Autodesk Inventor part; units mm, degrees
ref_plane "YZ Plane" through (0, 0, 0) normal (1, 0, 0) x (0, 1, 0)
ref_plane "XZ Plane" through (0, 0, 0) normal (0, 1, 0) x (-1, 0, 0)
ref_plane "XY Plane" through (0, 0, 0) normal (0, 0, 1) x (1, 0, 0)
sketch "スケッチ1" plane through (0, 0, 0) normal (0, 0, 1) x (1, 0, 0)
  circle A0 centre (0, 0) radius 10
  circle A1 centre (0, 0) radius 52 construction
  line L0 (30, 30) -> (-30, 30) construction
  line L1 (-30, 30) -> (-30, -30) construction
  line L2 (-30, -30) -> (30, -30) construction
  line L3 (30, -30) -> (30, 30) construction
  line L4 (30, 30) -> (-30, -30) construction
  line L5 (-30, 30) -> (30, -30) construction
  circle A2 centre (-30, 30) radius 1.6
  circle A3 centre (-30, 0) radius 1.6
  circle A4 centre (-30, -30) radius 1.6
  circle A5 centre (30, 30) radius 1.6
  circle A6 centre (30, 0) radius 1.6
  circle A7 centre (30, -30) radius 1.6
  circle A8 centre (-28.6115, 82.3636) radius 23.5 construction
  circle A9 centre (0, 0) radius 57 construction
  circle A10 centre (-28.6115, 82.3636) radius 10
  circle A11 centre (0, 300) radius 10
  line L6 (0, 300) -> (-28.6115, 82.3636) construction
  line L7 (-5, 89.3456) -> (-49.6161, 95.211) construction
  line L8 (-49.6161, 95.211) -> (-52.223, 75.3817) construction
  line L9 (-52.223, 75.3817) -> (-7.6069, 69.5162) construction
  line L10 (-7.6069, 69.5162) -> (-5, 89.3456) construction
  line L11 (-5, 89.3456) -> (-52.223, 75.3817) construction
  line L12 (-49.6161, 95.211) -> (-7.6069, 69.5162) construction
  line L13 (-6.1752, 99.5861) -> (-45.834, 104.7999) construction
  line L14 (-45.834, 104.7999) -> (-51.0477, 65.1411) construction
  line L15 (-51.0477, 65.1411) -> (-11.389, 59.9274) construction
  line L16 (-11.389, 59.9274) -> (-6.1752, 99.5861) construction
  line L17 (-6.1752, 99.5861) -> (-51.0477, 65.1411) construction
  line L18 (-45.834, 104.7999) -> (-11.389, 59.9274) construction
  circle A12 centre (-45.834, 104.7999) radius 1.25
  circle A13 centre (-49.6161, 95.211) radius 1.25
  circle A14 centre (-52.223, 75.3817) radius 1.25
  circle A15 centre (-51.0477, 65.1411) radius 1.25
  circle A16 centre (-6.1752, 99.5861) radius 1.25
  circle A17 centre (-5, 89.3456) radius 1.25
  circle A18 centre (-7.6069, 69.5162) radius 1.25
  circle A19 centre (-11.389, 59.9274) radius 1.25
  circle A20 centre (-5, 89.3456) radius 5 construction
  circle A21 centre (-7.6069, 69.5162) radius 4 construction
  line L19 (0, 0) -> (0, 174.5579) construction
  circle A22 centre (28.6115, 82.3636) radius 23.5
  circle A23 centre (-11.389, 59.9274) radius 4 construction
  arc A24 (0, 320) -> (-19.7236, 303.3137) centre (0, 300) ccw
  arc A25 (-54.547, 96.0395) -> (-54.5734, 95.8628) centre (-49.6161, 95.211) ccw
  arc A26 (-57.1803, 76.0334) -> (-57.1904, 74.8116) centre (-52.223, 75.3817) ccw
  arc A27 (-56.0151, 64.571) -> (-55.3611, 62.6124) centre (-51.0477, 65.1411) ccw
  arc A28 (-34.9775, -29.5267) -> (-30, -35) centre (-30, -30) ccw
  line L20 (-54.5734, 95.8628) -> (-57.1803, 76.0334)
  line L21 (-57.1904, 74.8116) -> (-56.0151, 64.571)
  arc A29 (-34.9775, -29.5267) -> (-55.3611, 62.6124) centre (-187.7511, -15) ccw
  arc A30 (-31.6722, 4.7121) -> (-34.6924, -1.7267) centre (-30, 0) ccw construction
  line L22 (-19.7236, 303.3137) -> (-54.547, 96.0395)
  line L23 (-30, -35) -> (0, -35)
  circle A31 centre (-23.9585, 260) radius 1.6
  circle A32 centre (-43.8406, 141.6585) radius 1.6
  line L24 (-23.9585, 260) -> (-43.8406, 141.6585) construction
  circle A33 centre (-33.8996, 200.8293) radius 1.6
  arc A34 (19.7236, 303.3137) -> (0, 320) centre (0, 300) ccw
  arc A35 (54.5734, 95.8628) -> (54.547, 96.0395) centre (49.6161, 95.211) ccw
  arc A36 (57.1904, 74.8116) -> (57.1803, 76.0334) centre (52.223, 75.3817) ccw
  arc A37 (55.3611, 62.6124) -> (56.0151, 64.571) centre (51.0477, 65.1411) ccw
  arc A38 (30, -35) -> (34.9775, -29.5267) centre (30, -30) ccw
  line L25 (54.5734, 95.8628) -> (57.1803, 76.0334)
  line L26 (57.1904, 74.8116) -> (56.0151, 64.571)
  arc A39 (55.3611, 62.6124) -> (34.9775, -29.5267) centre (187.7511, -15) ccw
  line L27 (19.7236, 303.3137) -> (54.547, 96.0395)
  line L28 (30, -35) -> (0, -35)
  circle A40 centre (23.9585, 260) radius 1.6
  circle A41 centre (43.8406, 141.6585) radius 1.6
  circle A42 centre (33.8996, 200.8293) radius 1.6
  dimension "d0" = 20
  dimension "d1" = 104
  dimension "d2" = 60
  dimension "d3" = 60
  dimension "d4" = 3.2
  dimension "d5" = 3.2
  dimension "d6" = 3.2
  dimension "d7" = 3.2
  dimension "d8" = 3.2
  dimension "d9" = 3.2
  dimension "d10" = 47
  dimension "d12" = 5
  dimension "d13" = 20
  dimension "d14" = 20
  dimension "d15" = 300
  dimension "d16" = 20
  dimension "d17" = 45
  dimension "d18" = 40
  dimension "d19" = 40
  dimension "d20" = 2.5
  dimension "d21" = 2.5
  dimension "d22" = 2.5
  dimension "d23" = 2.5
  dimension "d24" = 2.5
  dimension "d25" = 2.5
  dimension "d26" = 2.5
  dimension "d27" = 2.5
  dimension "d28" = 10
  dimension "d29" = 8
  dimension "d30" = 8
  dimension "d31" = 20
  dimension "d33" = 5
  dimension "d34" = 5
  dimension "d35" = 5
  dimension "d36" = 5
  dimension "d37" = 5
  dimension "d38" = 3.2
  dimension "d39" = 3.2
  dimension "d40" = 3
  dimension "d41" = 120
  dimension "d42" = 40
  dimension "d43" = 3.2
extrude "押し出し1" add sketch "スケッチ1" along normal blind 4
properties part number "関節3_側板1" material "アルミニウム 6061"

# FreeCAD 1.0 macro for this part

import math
import FreeCAD as App
import Part
import Sketcher

V = App.Vector
Q = App.Units.Quantity

doc = App.newDocument("Part")
body = doc.addObject("PartDesign::Body", "Body")

# Sketch on XY plane
sketch1 = body.newObject("Sketcher::SketchObject", "Sketch")
sketch1.AttachmentSupport = (doc.getObject("XY_Plane"), [""])
sketch1.MapMode = "FlatFace"
sketch1.addGeometry(Part.ArcOfCircle(Part.Circle(V(0, 300, 0), V(0, 0, 1), 20), math.radians(9.537018), math.radians(90)), False)
sketch1.addGeometry(Part.ArcOfCircle(Part.Circle(V(0, 300, 0), V(0, 0, 1), 20.000025), math.radians(90), math.radians(170.462982)), False)
sketch1.addGeometry(Part.LineSegment(V(-19.7236, 303.3137, 0), V(-54.547, 96.0395, 0)), False)
sketch1.addGeometry(Part.ArcOfCircle(Part.Circle(V(-49.772063, 95.235775, 0), V(0, 0, 1), 4.842107), math.radians(170.445442), math.radians(172.559628)), False)
sketch1.addGeometry(Part.LineSegment(V(-54.5734, 95.8628, 0), V(-57.1803, 76.0334, 0)), False)
sketch1.addGeometry(Part.ArcOfCircle(Part.Circle(V(-52.219392, 75.381449, 0), V(0, 0, 1), 5.003564), math.radians(172.513225), math.radians(186.539526)), False)
sketch1.addGeometry(Part.LineSegment(V(-57.1904, 74.8116, 0), V(-56.0151, 64.571, 0)), False)
sketch1.addGeometry(Part.ArcOfCircle(Part.Circle(V(-51.0477, 65.1411, 0), V(0, 0, 1), 5.000008), math.radians(-173.452907), math.radians(-149.61934)), False)
sketch1.addGeometry(Part.ArcOfCircle(Part.Circle(V(-187.7511, -15, 0), V(0, 0, 1), 153.462692), math.radians(-5.431722), math.radians(30.380565)), False)
sketch1.addGeometry(Part.ArcOfCircle(Part.Circle(V(-30, -30, 0), V(0, 0, 1), 4.999952), math.radians(174.568197), math.radians(270)), False)
sketch1.addGeometry(Part.LineSegment(V(-30, -35, 0), V(30, -35, 0)), False)
sketch1.addGeometry(Part.ArcOfCircle(Part.Circle(V(30, -30, 0), V(0, 0, 1), 5), math.radians(-90), math.radians(5.431803)), False)
sketch1.addGeometry(Part.ArcOfCircle(Part.Circle(V(187.7511, -15, 0), V(0, 0, 1), 153.462688), math.radians(149.619435), math.radians(185.431722)), False)
sketch1.addGeometry(Part.ArcOfCircle(Part.Circle(V(51.0477, 65.1411, 0), V(0, 0, 1), 4.999974), math.radians(-30.38066), math.radians(-6.547093)), False)
sketch1.addGeometry(Part.LineSegment(V(56.0151, 64.571, 0), V(57.1904, 74.8116, 0)), False)
sketch1.addGeometry(Part.ArcOfCircle(Part.Circle(V(52.226607, 75.381509, 0), V(0, 0, 1), 4.996403), math.radians(-6.549628), math.radians(7.496877)), False)
sketch1.addGeometry(Part.LineSegment(V(57.1803, 76.0334, 0), V(54.5734, 95.8628, 0)), False)
sketch1.addGeometry(Part.ArcOfCircle(Part.Circle(V(49.449178, 95.187534, 0), V(0, 0, 1), 5.168524), math.radians(7.507139), math.radians(9.487791)), False)
sketch1.addGeometry(Part.LineSegment(V(54.547, 96.0395, 0), V(19.7236, 303.3137, 0)), False)
sketch1.addGeometry(Part.Circle(V(-30, -30, 0), V(0, 0, 1), 1.6), False)
sketch1.addGeometry(Part.Circle(V(-30, 0, 0), V(0, 0, 1), 1.6), False)
sketch1.addGeometry(Part.Circle(V(-30, 30, 0), V(0, 0, 1), 1.6), False)
sketch1.addGeometry(Part.Circle(V(0, 0, 0), V(0, 0, 1), 10), False)
sketch1.addGeometry(Part.Circle(V(-51.0477, 65.1411, 0), V(0, 0, 1), 1.25), False)
sketch1.addGeometry(Part.Circle(V(-52.223, 75.3817, 0), V(0, 0, 1), 1.25), False)
sketch1.addGeometry(Part.Circle(V(-49.6161, 95.211, 0), V(0, 0, 1), 1.25), False)
sketch1.addGeometry(Part.Circle(V(-28.6115, 82.3636, 0), V(0, 0, 1), 10), False)
sketch1.addGeometry(Part.Circle(V(-45.834, 104.7999, 0), V(0, 0, 1), 1.25), False)
sketch1.addGeometry(Part.Circle(V(-43.8406, 141.6585, 0), V(0, 0, 1), 1.6), False)
sketch1.addGeometry(Part.Circle(V(-11.389, 59.9274, 0), V(0, 0, 1), 1.25), False)
sketch1.addGeometry(Part.Circle(V(-7.6069, 69.5162, 0), V(0, 0, 1), 1.25), False)
sketch1.addGeometry(Part.Circle(V(-5, 89.3456, 0), V(0, 0, 1), 1.25), False)
sketch1.addGeometry(Part.Circle(V(-6.1752, 99.5861, 0), V(0, 0, 1), 1.25), False)
sketch1.addGeometry(Part.Circle(V(30, -30, 0), V(0, 0, 1), 1.6), False)
sketch1.addGeometry(Part.Circle(V(30, 0, 0), V(0, 0, 1), 1.6), False)
sketch1.addGeometry(Part.Circle(V(30, 30, 0), V(0, 0, 1), 1.6), False)
sketch1.addGeometry(Part.Circle(V(28.6115, 82.3636, 0), V(0, 0, 1), 23.5), False)
sketch1.addGeometry(Part.Circle(V(43.8406, 141.6585, 0), V(0, 0, 1), 1.6), False)
sketch1.addGeometry(Part.Circle(V(-33.8996, 200.8293, 0), V(0, 0, 1), 1.6), False)
sketch1.addGeometry(Part.Circle(V(-23.9585, 260, 0), V(0, 0, 1), 1.6), False)
sketch1.addGeometry(Part.Circle(V(0, 300, 0), V(0, 0, 1), 10), False)
sketch1.addGeometry(Part.Circle(V(33.8996, 200.8293, 0), V(0, 0, 1), 1.6), False)
sketch1.addGeometry(Part.Circle(V(23.9585, 260, 0), V(0, 0, 1), 1.6), False)
sketch1.addConstraint(Sketcher.Constraint("Coincident", 0, 2, 1, 1))
sketch1.addConstraint(Sketcher.Constraint("Coincident", 1, 2, 2, 1))
sketch1.addConstraint(Sketcher.Constraint("Coincident", 2, 2, 3, 1))
sketch1.addConstraint(Sketcher.Constraint("Coincident", 3, 2, 4, 1))
sketch1.addConstraint(Sketcher.Constraint("Coincident", 4, 2, 5, 1))
sketch1.addConstraint(Sketcher.Constraint("Coincident", 5, 2, 6, 1))
sketch1.addConstraint(Sketcher.Constraint("Coincident", 6, 2, 7, 1))
sketch1.addConstraint(Sketcher.Constraint("Coincident", 7, 2, 8, 2))
sketch1.addConstraint(Sketcher.Constraint("Coincident", 8, 1, 9, 1))
sketch1.addConstraint(Sketcher.Constraint("Coincident", 9, 2, 10, 1))
sketch1.addConstraint(Sketcher.Constraint("Coincident", 10, 2, 11, 1))
sketch1.addConstraint(Sketcher.Constraint("Coincident", 11, 2, 12, 2))
sketch1.addConstraint(Sketcher.Constraint("Coincident", 12, 1, 13, 1))
sketch1.addConstraint(Sketcher.Constraint("Coincident", 13, 2, 14, 1))
sketch1.addConstraint(Sketcher.Constraint("Coincident", 14, 2, 15, 1))
sketch1.addConstraint(Sketcher.Constraint("Coincident", 15, 2, 16, 1))
sketch1.addConstraint(Sketcher.Constraint("Coincident", 16, 2, 17, 1))
sketch1.addConstraint(Sketcher.Constraint("Coincident", 17, 2, 18, 1))
sketch1.addConstraint(Sketcher.Constraint("Coincident", 18, 2, 0, 1))
sketch1.addConstraint(Sketcher.Constraint("Horizontal", 10))
sketch1.addConstraint(Sketcher.Constraint("Coincident", 22, 3, -1, 1))
sketch1.addConstraint(Sketcher.Constraint("Coincident", 1, 3, 0, 3))
sketch1.addConstraint(Sketcher.Constraint("Coincident", 19, 3, 9, 3))
sketch1.addConstraint(Sketcher.Constraint("Coincident", 23, 3, 7, 3))
sketch1.addConstraint(Sketcher.Constraint("Coincident", 33, 3, 11, 3))
sketch1.addConstraint(Sketcher.Constraint("Coincident", 40, 3, 0, 3))
sketch1.addConstraint(Sketcher.Constraint("PointOnObject", 0, 3, -2))
sketch1.addConstraint(Sketcher.Constraint("PointOnObject", 20, 3, -1))
sketch1.addConstraint(Sketcher.Constraint("PointOnObject", 34, 3, -1))
sketch1.addConstraint(Sketcher.Constraint("PointOnObject", 0, 2, -2))
sketch1.addConstraint(Sketcher.Constraint("Diameter", 22, Q("20 mm")))
sketch1.addConstraint(Sketcher.Constraint("Diameter", 26, Q("20 mm")))
sketch1.addConstraint(Sketcher.Constraint("Diameter", 36, Q("47 mm")))
sketch1.addConstraint(Sketcher.Constraint("Diameter", 40, Q("20 mm")))
sketch1.addConstraint(Sketcher.Constraint("Radius", 0, Q("20 mm")))
sketch1.addConstraint(Sketcher.Constraint("Radius", 7, Q("5 mm")))
sketch1.addConstraint(Sketcher.Constraint("Radius", 9, Q("5 mm")))
sketch1.addConstraint(Sketcher.Constraint("Radius", 11, Q("5 mm")))
sketch1.addConstraint(Sketcher.Constraint("Radius", 13, Q("5 mm")))
sketch1.addConstraint(Sketcher.Constraint("Diameter", 19, Q("3.2 mm")))
sketch1.addConstraint(Sketcher.Constraint("Diameter", 20, Q("3.2 mm")))
sketch1.addConstraint(Sketcher.Constraint("Diameter", 21, Q("3.2 mm")))
sketch1.addConstraint(Sketcher.Constraint("Diameter", 23, Q("2.5 mm")))
sketch1.addConstraint(Sketcher.Constraint("Diameter", 24, Q("2.5 mm")))
sketch1.addConstraint(Sketcher.Constraint("Diameter", 25, Q("2.5 mm")))
sketch1.addConstraint(Sketcher.Constraint("Diameter", 27, Q("2.5 mm")))
sketch1.addConstraint(Sketcher.Constraint("Diameter", 28, Q("3.2 mm")))
sketch1.addConstraint(Sketcher.Constraint("Diameter", 29, Q("2.5 mm")))
sketch1.addConstraint(Sketcher.Constraint("Diameter", 30, Q("2.5 mm")))
sketch1.addConstraint(Sketcher.Constraint("Diameter", 31, Q("2.5 mm")))
sketch1.addConstraint(Sketcher.Constraint("Diameter", 32, Q("2.5 mm")))
sketch1.addConstraint(Sketcher.Constraint("Diameter", 33, Q("3.2 mm")))
sketch1.addConstraint(Sketcher.Constraint("Diameter", 34, Q("3.2 mm")))
sketch1.addConstraint(Sketcher.Constraint("Diameter", 35, Q("3.2 mm")))
sketch1.addConstraint(Sketcher.Constraint("Diameter", 37, Q("3.2 mm")))
sketch1.addConstraint(Sketcher.Constraint("Diameter", 38, Q("3.2 mm")))
sketch1.addConstraint(Sketcher.Constraint("Diameter", 39, Q("3.2 mm")))
sketch1.addConstraint(Sketcher.Constraint("Diameter", 41, Q("3.2 mm")))
sketch1.addConstraint(Sketcher.Constraint("Diameter", 42, Q("3.2 mm")))
sketch1.addConstraint(Sketcher.Constraint("DistanceX", 10, 1, 10, 2, Q("60 mm")))
sketch1.addConstraint(Sketcher.Constraint("Distance", 4, Q("20 mm")))
sketch1.addConstraint(Sketcher.Constraint("Distance", 16, Q("20 mm")))
sketch1.addConstraint(Sketcher.Constraint("DistanceY", -1, 1, 0, 3, Q("300 mm")))
sketch1.addConstraint(Sketcher.Constraint("DistanceX", 31, 3, -1, 1, Q("5 mm")))
sketch1.addConstraint(Sketcher.Constraint("DistanceX", 9, 3, 11, 3, Q("60 mm")))
sketch1.addConstraint(Sketcher.Constraint("DistanceX", 20, 3, 11, 3, Q("60 mm")))
sketch1.addConstraint(Sketcher.Constraint("DistanceY", 9, 3, 21, 3, Q("60 mm")))
sketch1.addConstraint(Sketcher.Constraint("DistanceX", 20, 3, 34, 3, Q("60 mm")))
sketch1.addConstraint(Sketcher.Constraint("DistanceY", 39, 3, 0, 3, Q("40 mm")))
sketch1.addConstraint(Sketcher.Constraint("DistanceY", 42, 3, 0, 3, Q("40 mm")))
sketch1.addConstraint(Sketcher.Constraint("DistanceY", 8, 3, -1, 1, Q("15 mm")))
sketch1.addConstraint(Sketcher.Constraint("DistanceX", 9, 3, -1, 1, Q("30 mm")))
sketch1.addConstraint(Sketcher.Constraint("DistanceY", 9, 3, -1, 1, Q("30 mm")))
sketch1.addConstraint(Sketcher.Constraint("DistanceY", 12, 3, -1, 1, Q("15 mm")))
sketch1.addConstraint(Sketcher.Constraint("DistanceX", 21, 3, -1, 1, Q("30 mm")))
sketch1.addConstraint(Sketcher.Constraint("DistanceX", -1, 1, 35, 3, Q("30 mm")))
sketch1.addConstraint(Sketcher.Constraint("DistanceY", -1, 1, 35, 3, Q("30 mm")))
sketch1.addConstraint(Sketcher.Constraint("DistanceX", 9, 2, -1, 1, Q("30 mm")))
sketch1.addConstraint(Sketcher.Constraint("Radius", 3, Q("4.842 mm")))
sketch1.addConstraint(Sketcher.Constraint("DistanceY", -1, 1, 27, 3, Q("104.8 mm")))
sketch1.addConstraint(Sketcher.Constraint("Radius", 5, Q("5.0036 mm")))
sketch1.addConstraint(Sketcher.Constraint("Radius", 8, Q("153.4627 mm")))
sketch1.addConstraint(Sketcher.Constraint("Radius", 12, Q("153.4627 mm")))
sketch1.addConstraint(Sketcher.Constraint("Radius", 15, Q("4.9964 mm")))
sketch1.addConstraint(Sketcher.Constraint("Radius", 17, Q("5.1685 mm")))
sketch1.addConstraint(Sketcher.Constraint("DistanceY", 7, 3, 25, 3, Q("30.07 mm")))
sketch1.addConstraint(Sketcher.Constraint("DistanceY", 30, 3, 32, 3, Q("30.07 mm")))
sketch1.addConstraint(Sketcher.Constraint("DistanceX", 5, 2, 4, 2, Q("0.01 mm")))
sketch1.addConstraint(Sketcher.Constraint("DistanceY", 5, 2, 24, 3, Q("0.57 mm")))
sketch1.addConstraint(Sketcher.Constraint("DistanceY", 6, 2, 7, 3, Q("0.57 mm")))
sketch1.addConstraint(Sketcher.Constraint("DistanceY", 13, 2, 13, 3, Q("0.57 mm")))
sketch1.addConstraint(Sketcher.Constraint("DistanceY", 14, 2, 15, 3, Q("0.57 mm")))
sketch1.addConstraint(Sketcher.Constraint("DistanceX", 15, 2, 14, 2, Q("0.01 mm")))
sketch1.addConstraint(Sketcher.Constraint("DistanceX", 3, 3, -1, 1, Q("49.772 mm")))
sketch1.addConstraint(Sketcher.Constraint("DistanceY", -1, 1, 7, 3, Q("65.141 mm")))
sketch1.addConstraint(Sketcher.Constraint("DistanceY", -1, 1, 13, 3, Q("65.141 mm")))
sketch1.addConstraint(Sketcher.Constraint("DistanceX", 24, 3, -1, 1, Q("52.223 mm")))
sketch1.addConstraint(Sketcher.Constraint("DistanceX", 25, 3, -1, 1, Q("49.616 mm")))
sketch1.addConstraint(Sketcher.Constraint("DistanceX", 27, 3, -1, 1, Q("45.834 mm")))
sketch1.addConstraint(Sketcher.Constraint("DistanceX", 29, 3, -1, 1, Q("11.389 mm")))
sketch1.addConstraint(Sketcher.Constraint("DistanceX", 30, 3, -1, 1, Q("7.607 mm")))
sketch1.addConstraint(Sketcher.Constraint("DistanceY", -1, 1, 32, 3, Q("99.586 mm")))
sketch1.addConstraint(Sketcher.Constraint("DistanceX", 2, 2, -1, 1, Q("54.547 mm")))
sketch1.addConstraint(Sketcher.Constraint("DistanceX", -1, 1, 12, 1, Q("55.361 mm")))
sketch1.addConstraint(Sketcher.Constraint("DistanceX", -1, 1, 17, 2, Q("54.547 mm")))
sketch1.addConstraint(Sketcher.Constraint("DistanceX", 5, 3, 13, 3, Q("103.267 mm")))
sketch1.addConstraint(Sketcher.Constraint("DistanceX", 13, 3, 15, 3, Q("1.179 mm")))
sketch1.addConstraint(Sketcher.Constraint("DistanceY", 15, 3, 17, 3, Q("19.806 mm")))
sketch1.addConstraint(Sketcher.Constraint("DistanceY", 5, 3, 17, 3, Q("19.806 mm")))
sketch1.addConstraint(Sketcher.Constraint("DistanceY", 24, 3, 3, 3, Q("19.854 mm")))
sketch1.addConstraint(Sketcher.Constraint("DistanceX", 5, 3, 26, 3, Q("23.608 mm")))
sketch1.addConstraint(Sketcher.Constraint("DistanceY", 24, 3, 26, 3, Q("6.982 mm")))
sketch1.addConstraint(Sketcher.Constraint("DistanceX", 28, 3, 26, 3, Q("15.229 mm")))
sketch1.addConstraint(Sketcher.Constraint("DistanceY", 26, 3, 28, 3, Q("59.295 mm")))
sketch1.addConstraint(Sketcher.Constraint("DistanceY", 5, 3, 28, 3, Q("66.277 mm")))
sketch1.addConstraint(Sketcher.Constraint("DistanceY", 29, 3, 5, 3, Q("15.454 mm")))
sketch1.addConstraint(Sketcher.Constraint("DistanceY", 26, 3, 31, 3, Q("6.982 mm")))
sketch1.addConstraint(Sketcher.Constraint("DistanceY", 36, 3, 17, 3, Q("12.824 mm")))
sketch1.addConstraint(Sketcher.Constraint("DistanceX", 36, 3, 15, 3, Q("23.615 mm")))
sketch1.addConstraint(Sketcher.Constraint("DistanceY", 17, 3, 37, 3, Q("46.471 mm")))
sketch1.addConstraint(Sketcher.Constraint("DistanceX", 36, 3, 37, 3, Q("15.229 mm")))
sketch1.addConstraint(Sketcher.Constraint("DistanceX", 28, 3, 38, 3, Q("9.941 mm")))
sketch1.addConstraint(Sketcher.Constraint("DistanceX", 38, 3, 39, 3, Q("9.941 mm")))
sketch1.addConstraint(Sketcher.Constraint("DistanceX", 41, 3, 37, 3, Q("9.941 mm")))
sketch1.addConstraint(Sketcher.Constraint("DistanceX", 39, 3, 42, 3, Q("47.917 mm")))
sketch1.addConstraint(Sketcher.Constraint("DistanceX", 39, 3, 1, 2, Q("4.235 mm")))
sketch1.addConstraint(Sketcher.Constraint("DistanceY", 3, 2, 27, 3, Q("8.937 mm")))
sketch1.addConstraint(Sketcher.Constraint("DistanceX", 6, 2, 7, 2, Q("0.654 mm")))
sketch1.addConstraint(Sketcher.Constraint("DistanceX", 17, 3, 12, 1, Q("5.912 mm")))
sketch1.addConstraint(Sketcher.Constraint("Distance", 18, Q("210.1791 mm")))
sketch1.addConstraint(Sketcher.Constraint("DistanceX", 32, 3, -1, 1, Q("6.1752 mm")))
sketch1.addConstraint(Sketcher.Constraint("DistanceY", -1, 1, 38, 3, Q("200.8293 mm")))
sketch1.addConstraint(Sketcher.Constraint("DistanceY", -1, 1, 41, 3, Q("200.8293 mm")))
sketch1.addConstraint(Sketcher.Constraint("DistanceX", 8, 1, -1, 1, Q("34.9775 mm")))
sketch1.addConstraint(Sketcher.Constraint("DistanceX", -1, 1, 11, 2, Q("34.9775 mm")))
pad1 = body.newObject("PartDesign::Pad", "Pad")
pad1.Profile = sketch1
pad1.Length = 4

doc.recompute()
